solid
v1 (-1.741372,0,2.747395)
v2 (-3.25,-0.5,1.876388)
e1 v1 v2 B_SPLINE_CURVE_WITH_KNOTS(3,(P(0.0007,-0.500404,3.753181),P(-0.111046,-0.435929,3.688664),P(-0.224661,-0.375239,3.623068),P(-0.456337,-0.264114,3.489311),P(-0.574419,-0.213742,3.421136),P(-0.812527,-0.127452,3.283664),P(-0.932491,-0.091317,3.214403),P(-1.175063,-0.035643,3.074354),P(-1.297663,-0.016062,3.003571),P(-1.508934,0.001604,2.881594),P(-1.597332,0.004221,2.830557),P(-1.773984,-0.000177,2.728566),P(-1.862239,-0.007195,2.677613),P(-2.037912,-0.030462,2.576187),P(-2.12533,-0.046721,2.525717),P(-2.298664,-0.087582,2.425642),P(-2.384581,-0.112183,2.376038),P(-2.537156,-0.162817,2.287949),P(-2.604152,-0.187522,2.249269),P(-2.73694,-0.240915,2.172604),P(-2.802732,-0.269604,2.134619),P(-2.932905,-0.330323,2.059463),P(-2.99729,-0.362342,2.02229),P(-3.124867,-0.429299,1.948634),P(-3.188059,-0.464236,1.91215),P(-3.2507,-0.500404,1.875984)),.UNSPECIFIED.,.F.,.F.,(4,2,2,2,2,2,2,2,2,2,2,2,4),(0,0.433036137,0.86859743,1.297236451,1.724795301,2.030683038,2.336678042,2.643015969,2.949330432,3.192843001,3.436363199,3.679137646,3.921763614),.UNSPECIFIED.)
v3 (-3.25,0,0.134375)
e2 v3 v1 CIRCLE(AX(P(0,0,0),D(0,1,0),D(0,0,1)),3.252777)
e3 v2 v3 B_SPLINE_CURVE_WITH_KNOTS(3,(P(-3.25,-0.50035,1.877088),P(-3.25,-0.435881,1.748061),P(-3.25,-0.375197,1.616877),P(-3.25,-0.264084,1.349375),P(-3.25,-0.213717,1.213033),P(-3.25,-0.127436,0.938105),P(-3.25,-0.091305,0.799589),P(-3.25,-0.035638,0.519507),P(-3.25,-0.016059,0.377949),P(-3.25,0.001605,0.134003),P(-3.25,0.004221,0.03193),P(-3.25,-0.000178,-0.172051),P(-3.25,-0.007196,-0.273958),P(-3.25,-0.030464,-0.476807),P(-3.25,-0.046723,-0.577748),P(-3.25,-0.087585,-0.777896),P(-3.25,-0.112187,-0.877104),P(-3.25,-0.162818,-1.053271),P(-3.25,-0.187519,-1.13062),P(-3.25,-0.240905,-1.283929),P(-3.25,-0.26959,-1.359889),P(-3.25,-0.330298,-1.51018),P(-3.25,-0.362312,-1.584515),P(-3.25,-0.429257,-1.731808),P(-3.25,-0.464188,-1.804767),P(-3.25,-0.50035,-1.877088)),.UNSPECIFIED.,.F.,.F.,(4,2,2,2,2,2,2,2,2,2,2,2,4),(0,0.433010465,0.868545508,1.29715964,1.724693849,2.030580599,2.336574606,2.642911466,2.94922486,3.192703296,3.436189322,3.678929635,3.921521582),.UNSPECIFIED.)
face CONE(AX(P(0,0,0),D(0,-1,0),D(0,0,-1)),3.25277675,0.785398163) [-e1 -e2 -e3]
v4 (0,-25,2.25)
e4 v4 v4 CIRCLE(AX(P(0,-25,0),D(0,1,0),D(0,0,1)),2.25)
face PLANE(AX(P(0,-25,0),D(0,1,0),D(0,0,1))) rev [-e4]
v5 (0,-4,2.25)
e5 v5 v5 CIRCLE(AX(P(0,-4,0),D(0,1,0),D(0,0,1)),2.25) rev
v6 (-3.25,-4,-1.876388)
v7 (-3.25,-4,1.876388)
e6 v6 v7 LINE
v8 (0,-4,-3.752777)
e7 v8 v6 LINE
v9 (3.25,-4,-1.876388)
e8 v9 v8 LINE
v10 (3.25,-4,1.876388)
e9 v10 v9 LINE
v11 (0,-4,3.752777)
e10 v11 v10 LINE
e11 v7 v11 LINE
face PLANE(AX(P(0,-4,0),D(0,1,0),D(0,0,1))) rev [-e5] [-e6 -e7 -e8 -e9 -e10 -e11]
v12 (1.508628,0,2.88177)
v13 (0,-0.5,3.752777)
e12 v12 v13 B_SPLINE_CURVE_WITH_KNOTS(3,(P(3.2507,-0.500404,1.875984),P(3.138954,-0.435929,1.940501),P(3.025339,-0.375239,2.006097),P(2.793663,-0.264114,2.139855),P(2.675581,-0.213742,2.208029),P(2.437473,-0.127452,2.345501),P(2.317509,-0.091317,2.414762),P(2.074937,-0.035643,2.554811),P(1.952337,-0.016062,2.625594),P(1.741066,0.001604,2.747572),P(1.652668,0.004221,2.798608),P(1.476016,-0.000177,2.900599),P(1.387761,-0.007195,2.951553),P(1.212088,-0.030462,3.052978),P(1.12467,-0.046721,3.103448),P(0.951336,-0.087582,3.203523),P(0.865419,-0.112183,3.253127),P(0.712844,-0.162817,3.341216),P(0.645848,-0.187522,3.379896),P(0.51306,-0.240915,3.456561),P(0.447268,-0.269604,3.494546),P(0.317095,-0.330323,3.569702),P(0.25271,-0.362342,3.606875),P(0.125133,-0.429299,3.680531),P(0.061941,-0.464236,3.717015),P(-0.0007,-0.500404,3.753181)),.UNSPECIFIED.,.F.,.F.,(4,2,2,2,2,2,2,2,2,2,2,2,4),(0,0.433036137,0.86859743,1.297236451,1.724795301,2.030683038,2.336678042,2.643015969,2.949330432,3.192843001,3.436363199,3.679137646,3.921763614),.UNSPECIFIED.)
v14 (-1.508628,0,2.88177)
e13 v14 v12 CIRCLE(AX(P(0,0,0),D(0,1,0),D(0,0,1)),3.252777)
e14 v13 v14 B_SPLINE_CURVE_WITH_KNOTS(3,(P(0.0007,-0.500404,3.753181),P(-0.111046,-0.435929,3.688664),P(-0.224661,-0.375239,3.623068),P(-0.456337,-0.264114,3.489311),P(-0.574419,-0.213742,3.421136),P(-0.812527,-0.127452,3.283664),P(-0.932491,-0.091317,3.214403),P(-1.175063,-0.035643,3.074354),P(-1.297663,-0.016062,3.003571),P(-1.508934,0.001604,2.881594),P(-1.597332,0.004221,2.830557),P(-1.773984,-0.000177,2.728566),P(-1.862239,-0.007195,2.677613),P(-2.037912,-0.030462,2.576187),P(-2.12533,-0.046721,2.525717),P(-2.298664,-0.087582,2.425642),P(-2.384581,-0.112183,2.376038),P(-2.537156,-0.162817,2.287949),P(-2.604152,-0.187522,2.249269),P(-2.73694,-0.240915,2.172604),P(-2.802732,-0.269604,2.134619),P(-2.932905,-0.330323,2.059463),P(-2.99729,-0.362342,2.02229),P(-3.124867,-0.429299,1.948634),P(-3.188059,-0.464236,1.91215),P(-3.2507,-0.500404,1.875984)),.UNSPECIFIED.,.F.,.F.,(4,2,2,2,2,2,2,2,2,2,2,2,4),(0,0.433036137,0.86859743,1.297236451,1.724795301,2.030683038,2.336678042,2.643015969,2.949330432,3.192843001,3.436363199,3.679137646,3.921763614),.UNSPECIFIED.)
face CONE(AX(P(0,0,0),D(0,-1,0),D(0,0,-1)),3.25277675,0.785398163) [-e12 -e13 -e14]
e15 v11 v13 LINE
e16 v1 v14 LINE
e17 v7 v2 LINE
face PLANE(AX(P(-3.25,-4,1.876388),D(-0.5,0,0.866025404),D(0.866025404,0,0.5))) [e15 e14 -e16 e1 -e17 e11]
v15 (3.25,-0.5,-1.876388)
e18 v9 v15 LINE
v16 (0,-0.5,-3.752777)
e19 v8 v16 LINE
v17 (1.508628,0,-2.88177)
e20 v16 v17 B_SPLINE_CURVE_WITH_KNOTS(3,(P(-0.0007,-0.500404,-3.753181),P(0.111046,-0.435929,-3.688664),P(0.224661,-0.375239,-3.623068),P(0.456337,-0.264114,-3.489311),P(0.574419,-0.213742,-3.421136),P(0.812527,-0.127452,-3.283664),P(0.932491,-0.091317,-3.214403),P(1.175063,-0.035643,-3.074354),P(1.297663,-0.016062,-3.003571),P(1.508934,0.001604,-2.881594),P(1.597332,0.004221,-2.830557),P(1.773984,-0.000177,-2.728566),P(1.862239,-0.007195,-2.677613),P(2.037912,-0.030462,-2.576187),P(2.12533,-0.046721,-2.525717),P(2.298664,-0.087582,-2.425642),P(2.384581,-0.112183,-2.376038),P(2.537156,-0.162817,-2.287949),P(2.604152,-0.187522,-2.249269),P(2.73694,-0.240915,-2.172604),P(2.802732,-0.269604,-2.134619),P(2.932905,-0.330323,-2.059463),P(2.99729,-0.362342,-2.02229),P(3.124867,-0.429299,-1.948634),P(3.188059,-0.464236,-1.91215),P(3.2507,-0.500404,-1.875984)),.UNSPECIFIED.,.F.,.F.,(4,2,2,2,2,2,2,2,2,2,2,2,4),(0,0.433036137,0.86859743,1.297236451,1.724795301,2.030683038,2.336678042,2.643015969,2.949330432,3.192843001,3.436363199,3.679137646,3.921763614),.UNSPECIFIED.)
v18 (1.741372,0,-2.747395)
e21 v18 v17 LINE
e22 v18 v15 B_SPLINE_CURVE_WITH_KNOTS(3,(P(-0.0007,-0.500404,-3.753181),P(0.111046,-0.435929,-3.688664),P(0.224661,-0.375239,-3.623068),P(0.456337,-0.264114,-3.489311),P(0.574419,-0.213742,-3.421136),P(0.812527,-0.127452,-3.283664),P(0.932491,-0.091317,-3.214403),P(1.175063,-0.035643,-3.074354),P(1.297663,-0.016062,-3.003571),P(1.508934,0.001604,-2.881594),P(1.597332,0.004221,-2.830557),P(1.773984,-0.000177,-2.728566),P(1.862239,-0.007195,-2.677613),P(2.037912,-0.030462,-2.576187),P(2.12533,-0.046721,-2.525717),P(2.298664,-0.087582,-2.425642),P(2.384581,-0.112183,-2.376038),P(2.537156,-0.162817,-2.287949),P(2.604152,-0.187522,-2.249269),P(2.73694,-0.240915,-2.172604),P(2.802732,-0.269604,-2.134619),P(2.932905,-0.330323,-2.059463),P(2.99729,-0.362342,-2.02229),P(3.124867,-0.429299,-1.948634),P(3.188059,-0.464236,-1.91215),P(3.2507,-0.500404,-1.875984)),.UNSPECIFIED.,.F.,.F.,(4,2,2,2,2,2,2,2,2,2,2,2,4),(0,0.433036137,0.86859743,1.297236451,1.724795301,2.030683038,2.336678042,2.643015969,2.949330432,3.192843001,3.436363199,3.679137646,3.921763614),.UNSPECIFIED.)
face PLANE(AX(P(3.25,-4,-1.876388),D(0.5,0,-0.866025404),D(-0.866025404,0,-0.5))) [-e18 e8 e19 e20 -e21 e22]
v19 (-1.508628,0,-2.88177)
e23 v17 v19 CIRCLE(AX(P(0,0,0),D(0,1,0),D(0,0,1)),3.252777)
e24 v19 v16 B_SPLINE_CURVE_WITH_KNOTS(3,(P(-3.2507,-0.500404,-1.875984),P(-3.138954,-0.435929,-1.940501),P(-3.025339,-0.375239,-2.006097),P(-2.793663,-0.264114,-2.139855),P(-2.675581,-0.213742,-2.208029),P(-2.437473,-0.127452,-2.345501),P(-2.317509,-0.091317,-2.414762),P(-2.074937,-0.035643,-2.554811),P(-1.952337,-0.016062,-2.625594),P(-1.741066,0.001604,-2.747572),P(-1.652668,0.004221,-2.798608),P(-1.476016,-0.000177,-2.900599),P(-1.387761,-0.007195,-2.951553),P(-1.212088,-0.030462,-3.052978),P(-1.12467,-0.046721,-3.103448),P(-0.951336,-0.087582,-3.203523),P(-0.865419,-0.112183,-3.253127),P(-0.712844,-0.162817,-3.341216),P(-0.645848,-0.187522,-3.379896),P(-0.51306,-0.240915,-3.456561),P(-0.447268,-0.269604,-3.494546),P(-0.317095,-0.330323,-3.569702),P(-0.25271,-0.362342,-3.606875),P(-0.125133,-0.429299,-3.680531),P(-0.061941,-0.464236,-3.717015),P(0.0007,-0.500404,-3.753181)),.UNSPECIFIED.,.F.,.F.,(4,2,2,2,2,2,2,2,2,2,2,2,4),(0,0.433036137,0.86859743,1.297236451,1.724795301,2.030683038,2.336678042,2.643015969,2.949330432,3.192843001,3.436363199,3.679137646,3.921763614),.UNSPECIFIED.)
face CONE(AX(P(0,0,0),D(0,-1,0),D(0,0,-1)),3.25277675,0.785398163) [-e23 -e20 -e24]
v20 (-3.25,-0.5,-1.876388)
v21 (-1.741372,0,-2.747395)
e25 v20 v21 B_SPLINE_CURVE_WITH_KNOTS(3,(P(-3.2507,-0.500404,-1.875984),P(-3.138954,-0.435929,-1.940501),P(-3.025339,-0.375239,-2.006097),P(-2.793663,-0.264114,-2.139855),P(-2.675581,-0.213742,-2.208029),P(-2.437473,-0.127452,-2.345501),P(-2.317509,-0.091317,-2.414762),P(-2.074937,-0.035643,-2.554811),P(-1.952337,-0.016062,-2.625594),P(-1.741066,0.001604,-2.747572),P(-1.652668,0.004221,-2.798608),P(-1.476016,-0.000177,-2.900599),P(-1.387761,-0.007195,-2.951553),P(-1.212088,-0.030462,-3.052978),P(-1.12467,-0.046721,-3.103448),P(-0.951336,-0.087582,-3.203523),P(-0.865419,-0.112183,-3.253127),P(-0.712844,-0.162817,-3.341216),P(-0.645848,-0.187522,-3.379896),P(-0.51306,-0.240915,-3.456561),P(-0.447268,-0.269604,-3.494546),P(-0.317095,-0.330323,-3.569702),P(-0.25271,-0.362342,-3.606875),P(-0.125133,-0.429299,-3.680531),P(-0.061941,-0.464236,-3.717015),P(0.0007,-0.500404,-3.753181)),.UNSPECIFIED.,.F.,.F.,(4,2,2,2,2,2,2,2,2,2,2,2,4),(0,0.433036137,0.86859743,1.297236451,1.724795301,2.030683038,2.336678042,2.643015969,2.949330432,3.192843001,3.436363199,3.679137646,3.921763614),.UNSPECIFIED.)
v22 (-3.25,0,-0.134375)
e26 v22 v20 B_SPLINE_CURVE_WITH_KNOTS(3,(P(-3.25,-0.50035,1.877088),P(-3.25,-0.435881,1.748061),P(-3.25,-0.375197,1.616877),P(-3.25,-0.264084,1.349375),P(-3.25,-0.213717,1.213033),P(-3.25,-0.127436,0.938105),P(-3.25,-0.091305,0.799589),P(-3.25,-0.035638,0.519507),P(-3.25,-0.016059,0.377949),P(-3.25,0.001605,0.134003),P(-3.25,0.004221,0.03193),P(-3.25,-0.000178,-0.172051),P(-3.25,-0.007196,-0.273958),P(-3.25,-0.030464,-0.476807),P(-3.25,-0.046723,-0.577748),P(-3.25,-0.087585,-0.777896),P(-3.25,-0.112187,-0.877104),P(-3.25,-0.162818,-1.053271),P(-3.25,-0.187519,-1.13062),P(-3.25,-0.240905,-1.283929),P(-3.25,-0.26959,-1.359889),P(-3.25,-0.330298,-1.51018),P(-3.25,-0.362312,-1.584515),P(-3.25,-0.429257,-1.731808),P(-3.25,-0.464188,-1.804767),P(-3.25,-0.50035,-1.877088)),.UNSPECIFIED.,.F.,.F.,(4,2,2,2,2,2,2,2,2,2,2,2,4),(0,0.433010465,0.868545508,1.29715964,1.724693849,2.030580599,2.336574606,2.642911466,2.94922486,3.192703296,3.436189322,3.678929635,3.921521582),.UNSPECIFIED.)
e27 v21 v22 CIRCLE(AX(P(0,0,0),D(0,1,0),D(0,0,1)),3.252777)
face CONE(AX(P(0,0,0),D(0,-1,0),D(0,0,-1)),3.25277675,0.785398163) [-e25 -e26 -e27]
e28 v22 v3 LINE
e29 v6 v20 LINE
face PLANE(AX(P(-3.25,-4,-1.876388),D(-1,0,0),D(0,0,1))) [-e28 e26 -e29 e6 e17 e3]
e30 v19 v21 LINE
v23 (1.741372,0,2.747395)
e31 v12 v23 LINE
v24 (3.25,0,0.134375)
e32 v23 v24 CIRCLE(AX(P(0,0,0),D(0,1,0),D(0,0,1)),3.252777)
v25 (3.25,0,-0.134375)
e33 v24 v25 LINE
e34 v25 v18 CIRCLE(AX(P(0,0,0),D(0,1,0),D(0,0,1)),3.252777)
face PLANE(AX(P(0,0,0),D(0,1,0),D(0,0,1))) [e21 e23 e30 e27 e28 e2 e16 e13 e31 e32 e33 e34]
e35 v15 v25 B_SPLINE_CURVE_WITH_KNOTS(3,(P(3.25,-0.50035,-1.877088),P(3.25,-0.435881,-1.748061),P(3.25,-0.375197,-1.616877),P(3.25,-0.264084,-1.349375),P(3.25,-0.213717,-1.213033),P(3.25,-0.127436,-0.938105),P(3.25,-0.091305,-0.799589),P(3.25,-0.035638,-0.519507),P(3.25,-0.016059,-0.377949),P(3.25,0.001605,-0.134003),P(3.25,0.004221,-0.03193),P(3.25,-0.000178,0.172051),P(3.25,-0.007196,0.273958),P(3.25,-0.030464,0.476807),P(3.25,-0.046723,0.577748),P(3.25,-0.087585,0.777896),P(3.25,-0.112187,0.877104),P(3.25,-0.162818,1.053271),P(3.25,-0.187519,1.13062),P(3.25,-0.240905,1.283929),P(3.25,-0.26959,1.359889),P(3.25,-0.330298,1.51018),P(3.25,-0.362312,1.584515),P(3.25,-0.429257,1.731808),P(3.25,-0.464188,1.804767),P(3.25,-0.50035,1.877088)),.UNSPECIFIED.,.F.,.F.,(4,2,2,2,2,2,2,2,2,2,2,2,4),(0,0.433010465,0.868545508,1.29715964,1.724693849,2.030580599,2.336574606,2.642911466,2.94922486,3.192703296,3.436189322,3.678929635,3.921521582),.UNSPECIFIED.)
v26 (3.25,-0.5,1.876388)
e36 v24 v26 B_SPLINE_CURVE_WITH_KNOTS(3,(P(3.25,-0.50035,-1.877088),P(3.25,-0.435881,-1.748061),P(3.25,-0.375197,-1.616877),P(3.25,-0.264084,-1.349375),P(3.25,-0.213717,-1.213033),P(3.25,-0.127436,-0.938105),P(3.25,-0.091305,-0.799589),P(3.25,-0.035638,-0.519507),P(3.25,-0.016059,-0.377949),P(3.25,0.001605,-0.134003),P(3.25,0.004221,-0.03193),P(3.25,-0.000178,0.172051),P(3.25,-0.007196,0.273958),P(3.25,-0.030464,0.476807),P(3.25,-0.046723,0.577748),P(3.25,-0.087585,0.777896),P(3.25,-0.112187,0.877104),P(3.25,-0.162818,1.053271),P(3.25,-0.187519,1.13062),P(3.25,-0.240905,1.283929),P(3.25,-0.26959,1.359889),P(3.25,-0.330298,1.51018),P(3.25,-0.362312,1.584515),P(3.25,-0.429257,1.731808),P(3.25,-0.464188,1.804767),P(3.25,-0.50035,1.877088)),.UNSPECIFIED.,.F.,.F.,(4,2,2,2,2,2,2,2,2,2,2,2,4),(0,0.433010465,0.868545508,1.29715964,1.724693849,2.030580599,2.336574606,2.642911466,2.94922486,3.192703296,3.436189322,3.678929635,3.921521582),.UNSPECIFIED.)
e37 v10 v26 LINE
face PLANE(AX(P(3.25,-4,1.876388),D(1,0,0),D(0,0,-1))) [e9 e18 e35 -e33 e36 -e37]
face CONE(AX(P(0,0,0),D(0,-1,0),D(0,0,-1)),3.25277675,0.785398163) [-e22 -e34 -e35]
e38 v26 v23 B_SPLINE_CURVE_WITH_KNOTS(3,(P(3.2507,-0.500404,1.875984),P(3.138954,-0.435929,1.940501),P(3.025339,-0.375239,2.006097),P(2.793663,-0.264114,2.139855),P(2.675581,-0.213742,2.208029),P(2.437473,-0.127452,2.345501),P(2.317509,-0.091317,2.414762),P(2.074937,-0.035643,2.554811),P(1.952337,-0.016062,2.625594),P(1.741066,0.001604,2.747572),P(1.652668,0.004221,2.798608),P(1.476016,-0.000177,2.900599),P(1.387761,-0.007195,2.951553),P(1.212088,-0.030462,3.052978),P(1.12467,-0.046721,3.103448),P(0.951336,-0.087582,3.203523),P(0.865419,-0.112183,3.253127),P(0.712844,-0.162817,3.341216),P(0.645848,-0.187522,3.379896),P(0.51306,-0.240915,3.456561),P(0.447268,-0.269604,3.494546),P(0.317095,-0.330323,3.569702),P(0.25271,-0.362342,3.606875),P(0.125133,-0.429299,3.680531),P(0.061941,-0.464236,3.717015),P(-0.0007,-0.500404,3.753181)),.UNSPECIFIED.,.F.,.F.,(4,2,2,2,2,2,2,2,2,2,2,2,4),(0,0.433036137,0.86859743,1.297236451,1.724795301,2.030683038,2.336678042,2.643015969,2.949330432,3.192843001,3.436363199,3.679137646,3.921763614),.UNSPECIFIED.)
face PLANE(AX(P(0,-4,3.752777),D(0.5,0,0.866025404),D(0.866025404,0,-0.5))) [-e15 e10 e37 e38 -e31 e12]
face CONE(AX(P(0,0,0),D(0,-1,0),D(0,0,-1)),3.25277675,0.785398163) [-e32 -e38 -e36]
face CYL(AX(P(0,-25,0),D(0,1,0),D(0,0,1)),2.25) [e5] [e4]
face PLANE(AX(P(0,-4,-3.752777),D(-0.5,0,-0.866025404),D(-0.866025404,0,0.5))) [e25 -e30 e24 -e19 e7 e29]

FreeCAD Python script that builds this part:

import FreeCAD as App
import Part
import Sketcher
from FreeCAD import Vector
Q = App.Units.Quantity

doc = App.newDocument("Part")
params = doc.addObject("Spreadsheet::Sheet", "Params")
for row, (alias, value) in enumerate([
    ("sketch1_diameter", "4.5 mm"),
    ("pad1_length", "25 mm"),
    ("pad2_length", "4 mm"),
    ("sketch3_width", "0.5 mm"),
    ("groove_angle", "360 deg"),
], start=1):
    params.set(f"A{row}", alias)
    params.set(f"B{row}", "=" + value)
    params.setAlias(f"B{row}", alias)

body = doc.addObject("PartDesign::Body", "Body")

sketch1 = body.newObject("Sketcher::SketchObject", "Sketch")
sketch1.AttachmentSupport = (doc.getObject("XZ_Plane"), [""])
sketch1.MapMode = "FlatFace"
sketch1.addGeometry(Part.Circle(Vector(0, 0, 0), Vector(0, 0, 1), 2.25), False)
sketch1.addConstraint([
    Sketcher.Constraint("Coincident", 0, 3, -1, 1),
    Sketcher.Constraint("Diameter", 0, Q("4.5 mm")),
])
sketch1.setExpression("Constraints[1]", "Params.sketch1_diameter")
pad1 = body.newObject("PartDesign::Pad", "Pad")
pad1.Profile = sketch1
pad1.setExpression("Length", "Params.pad1_length")

sketch2 = body.newObject("Sketcher::SketchObject", "Sketch001")
sketch2.AttachmentSupport = (doc.getObject("XZ_Plane"), [""])
sketch2.MapMode = "FlatFace"
sketch2.addGeometry([
    Part.LineSegment(Vector(0, -3.752777, 0), Vector(-3.25, -1.876388, 0)),
    Part.LineSegment(Vector(-3.25, -1.876388, 0), Vector(-3.25, 1.876388, 0)),
    Part.LineSegment(Vector(-3.25, 1.876388, 0), Vector(0, 3.752777, 0)),
    Part.LineSegment(Vector(0, 3.752777, 0), Vector(3.25, 1.876388, 0)),
    Part.LineSegment(Vector(3.25, 1.876388, 0), Vector(3.25, -1.876388, 0)),
    Part.LineSegment(Vector(3.25, -1.876388, 0), Vector(0, -3.752777, 0)),
], False)
sketch2.addConstraint([
    Sketcher.Constraint("Coincident", 0, 2, 1, 1),
    Sketcher.Constraint("Coincident", 1, 2, 2, 1),
    Sketcher.Constraint("Coincident", 2, 2, 3, 1),
    Sketcher.Constraint("Coincident", 3, 2, 4, 1),
    Sketcher.Constraint("Coincident", 4, 2, 5, 1),
    Sketcher.Constraint("Coincident", 5, 2, 0, 1),
    Sketcher.Constraint("Vertical", 1),
    Sketcher.Constraint("Vertical", 4),
    Sketcher.Constraint("Symmetric", 0, 2, 3, 2, -1, 1),
    Sketcher.Constraint("Symmetric", 2, 2, 5, 2, -1, 1),
    Sketcher.Constraint("PointOnObject", 2, 2, -2),
    Sketcher.Constraint("Parallel", 2, 5),
    Sketcher.Constraint("Horizontal", 1, 2, 3, 2),
    Sketcher.Constraint("Angle", 0, Q("150 deg")),
    Sketcher.Constraint("DistanceX", 1, 2, 3, 2, Q("6.5 mm")),
    Sketcher.Constraint("DistanceY", 1, 1, 1, 2, Q("3.752777 mm")),
])
pad2 = body.newObject("PartDesign::Pad", "Pad001")
pad2.Profile = sketch2
pad2.setExpression("Length", "Params.pad2_length")

sketch3 = body.newObject("Sketcher::SketchObject", "Sketch002")
sketch3.AttachmentSupport = (doc.getObject("YZ_Plane"), [""])
sketch3.MapMode = "FlatFace"
sketch3.addGeometry([
    Part.LineSegment(Vector(0, -3.752777, 0), Vector(0, -3.252777, 0)),
    Part.LineSegment(Vector(0, -3.252777, 0), Vector(-0.5, -3.752777, 0)),
    Part.LineSegment(Vector(-0.5, -3.752777, 0), Vector(0, -3.752777, 0)),
], False)
sketch3.addConstraint([
    Sketcher.Constraint("Coincident", 0, 2, 1, 1),
    Sketcher.Constraint("Coincident", 1, 2, 2, 1),
    Sketcher.Constraint("Coincident", 2, 2, 0, 1),
    Sketcher.Constraint("Vertical", 0),
    Sketcher.Constraint("Horizontal", 2),
    Sketcher.Constraint("PointOnObject", 0, 2, -2),
    Sketcher.Constraint("Equal", 2, 0),
    Sketcher.Constraint("DistanceX", 2, 1, 2, 2, Q("0.5 mm")),
    Sketcher.Constraint("DistanceY", 0, 2, -1, 1, Q("3.252777 mm")),
])
sketch3.setExpression("Constraints[7]", "Params.sketch3_width")
groove = body.newObject("PartDesign::Groove", "Groove")
groove.Profile = sketch3
groove.ReferenceAxis = (sketch3, ["H_Axis"])
groove.setExpression("Angle", "Params.groove_angle")

doc.recompute()
